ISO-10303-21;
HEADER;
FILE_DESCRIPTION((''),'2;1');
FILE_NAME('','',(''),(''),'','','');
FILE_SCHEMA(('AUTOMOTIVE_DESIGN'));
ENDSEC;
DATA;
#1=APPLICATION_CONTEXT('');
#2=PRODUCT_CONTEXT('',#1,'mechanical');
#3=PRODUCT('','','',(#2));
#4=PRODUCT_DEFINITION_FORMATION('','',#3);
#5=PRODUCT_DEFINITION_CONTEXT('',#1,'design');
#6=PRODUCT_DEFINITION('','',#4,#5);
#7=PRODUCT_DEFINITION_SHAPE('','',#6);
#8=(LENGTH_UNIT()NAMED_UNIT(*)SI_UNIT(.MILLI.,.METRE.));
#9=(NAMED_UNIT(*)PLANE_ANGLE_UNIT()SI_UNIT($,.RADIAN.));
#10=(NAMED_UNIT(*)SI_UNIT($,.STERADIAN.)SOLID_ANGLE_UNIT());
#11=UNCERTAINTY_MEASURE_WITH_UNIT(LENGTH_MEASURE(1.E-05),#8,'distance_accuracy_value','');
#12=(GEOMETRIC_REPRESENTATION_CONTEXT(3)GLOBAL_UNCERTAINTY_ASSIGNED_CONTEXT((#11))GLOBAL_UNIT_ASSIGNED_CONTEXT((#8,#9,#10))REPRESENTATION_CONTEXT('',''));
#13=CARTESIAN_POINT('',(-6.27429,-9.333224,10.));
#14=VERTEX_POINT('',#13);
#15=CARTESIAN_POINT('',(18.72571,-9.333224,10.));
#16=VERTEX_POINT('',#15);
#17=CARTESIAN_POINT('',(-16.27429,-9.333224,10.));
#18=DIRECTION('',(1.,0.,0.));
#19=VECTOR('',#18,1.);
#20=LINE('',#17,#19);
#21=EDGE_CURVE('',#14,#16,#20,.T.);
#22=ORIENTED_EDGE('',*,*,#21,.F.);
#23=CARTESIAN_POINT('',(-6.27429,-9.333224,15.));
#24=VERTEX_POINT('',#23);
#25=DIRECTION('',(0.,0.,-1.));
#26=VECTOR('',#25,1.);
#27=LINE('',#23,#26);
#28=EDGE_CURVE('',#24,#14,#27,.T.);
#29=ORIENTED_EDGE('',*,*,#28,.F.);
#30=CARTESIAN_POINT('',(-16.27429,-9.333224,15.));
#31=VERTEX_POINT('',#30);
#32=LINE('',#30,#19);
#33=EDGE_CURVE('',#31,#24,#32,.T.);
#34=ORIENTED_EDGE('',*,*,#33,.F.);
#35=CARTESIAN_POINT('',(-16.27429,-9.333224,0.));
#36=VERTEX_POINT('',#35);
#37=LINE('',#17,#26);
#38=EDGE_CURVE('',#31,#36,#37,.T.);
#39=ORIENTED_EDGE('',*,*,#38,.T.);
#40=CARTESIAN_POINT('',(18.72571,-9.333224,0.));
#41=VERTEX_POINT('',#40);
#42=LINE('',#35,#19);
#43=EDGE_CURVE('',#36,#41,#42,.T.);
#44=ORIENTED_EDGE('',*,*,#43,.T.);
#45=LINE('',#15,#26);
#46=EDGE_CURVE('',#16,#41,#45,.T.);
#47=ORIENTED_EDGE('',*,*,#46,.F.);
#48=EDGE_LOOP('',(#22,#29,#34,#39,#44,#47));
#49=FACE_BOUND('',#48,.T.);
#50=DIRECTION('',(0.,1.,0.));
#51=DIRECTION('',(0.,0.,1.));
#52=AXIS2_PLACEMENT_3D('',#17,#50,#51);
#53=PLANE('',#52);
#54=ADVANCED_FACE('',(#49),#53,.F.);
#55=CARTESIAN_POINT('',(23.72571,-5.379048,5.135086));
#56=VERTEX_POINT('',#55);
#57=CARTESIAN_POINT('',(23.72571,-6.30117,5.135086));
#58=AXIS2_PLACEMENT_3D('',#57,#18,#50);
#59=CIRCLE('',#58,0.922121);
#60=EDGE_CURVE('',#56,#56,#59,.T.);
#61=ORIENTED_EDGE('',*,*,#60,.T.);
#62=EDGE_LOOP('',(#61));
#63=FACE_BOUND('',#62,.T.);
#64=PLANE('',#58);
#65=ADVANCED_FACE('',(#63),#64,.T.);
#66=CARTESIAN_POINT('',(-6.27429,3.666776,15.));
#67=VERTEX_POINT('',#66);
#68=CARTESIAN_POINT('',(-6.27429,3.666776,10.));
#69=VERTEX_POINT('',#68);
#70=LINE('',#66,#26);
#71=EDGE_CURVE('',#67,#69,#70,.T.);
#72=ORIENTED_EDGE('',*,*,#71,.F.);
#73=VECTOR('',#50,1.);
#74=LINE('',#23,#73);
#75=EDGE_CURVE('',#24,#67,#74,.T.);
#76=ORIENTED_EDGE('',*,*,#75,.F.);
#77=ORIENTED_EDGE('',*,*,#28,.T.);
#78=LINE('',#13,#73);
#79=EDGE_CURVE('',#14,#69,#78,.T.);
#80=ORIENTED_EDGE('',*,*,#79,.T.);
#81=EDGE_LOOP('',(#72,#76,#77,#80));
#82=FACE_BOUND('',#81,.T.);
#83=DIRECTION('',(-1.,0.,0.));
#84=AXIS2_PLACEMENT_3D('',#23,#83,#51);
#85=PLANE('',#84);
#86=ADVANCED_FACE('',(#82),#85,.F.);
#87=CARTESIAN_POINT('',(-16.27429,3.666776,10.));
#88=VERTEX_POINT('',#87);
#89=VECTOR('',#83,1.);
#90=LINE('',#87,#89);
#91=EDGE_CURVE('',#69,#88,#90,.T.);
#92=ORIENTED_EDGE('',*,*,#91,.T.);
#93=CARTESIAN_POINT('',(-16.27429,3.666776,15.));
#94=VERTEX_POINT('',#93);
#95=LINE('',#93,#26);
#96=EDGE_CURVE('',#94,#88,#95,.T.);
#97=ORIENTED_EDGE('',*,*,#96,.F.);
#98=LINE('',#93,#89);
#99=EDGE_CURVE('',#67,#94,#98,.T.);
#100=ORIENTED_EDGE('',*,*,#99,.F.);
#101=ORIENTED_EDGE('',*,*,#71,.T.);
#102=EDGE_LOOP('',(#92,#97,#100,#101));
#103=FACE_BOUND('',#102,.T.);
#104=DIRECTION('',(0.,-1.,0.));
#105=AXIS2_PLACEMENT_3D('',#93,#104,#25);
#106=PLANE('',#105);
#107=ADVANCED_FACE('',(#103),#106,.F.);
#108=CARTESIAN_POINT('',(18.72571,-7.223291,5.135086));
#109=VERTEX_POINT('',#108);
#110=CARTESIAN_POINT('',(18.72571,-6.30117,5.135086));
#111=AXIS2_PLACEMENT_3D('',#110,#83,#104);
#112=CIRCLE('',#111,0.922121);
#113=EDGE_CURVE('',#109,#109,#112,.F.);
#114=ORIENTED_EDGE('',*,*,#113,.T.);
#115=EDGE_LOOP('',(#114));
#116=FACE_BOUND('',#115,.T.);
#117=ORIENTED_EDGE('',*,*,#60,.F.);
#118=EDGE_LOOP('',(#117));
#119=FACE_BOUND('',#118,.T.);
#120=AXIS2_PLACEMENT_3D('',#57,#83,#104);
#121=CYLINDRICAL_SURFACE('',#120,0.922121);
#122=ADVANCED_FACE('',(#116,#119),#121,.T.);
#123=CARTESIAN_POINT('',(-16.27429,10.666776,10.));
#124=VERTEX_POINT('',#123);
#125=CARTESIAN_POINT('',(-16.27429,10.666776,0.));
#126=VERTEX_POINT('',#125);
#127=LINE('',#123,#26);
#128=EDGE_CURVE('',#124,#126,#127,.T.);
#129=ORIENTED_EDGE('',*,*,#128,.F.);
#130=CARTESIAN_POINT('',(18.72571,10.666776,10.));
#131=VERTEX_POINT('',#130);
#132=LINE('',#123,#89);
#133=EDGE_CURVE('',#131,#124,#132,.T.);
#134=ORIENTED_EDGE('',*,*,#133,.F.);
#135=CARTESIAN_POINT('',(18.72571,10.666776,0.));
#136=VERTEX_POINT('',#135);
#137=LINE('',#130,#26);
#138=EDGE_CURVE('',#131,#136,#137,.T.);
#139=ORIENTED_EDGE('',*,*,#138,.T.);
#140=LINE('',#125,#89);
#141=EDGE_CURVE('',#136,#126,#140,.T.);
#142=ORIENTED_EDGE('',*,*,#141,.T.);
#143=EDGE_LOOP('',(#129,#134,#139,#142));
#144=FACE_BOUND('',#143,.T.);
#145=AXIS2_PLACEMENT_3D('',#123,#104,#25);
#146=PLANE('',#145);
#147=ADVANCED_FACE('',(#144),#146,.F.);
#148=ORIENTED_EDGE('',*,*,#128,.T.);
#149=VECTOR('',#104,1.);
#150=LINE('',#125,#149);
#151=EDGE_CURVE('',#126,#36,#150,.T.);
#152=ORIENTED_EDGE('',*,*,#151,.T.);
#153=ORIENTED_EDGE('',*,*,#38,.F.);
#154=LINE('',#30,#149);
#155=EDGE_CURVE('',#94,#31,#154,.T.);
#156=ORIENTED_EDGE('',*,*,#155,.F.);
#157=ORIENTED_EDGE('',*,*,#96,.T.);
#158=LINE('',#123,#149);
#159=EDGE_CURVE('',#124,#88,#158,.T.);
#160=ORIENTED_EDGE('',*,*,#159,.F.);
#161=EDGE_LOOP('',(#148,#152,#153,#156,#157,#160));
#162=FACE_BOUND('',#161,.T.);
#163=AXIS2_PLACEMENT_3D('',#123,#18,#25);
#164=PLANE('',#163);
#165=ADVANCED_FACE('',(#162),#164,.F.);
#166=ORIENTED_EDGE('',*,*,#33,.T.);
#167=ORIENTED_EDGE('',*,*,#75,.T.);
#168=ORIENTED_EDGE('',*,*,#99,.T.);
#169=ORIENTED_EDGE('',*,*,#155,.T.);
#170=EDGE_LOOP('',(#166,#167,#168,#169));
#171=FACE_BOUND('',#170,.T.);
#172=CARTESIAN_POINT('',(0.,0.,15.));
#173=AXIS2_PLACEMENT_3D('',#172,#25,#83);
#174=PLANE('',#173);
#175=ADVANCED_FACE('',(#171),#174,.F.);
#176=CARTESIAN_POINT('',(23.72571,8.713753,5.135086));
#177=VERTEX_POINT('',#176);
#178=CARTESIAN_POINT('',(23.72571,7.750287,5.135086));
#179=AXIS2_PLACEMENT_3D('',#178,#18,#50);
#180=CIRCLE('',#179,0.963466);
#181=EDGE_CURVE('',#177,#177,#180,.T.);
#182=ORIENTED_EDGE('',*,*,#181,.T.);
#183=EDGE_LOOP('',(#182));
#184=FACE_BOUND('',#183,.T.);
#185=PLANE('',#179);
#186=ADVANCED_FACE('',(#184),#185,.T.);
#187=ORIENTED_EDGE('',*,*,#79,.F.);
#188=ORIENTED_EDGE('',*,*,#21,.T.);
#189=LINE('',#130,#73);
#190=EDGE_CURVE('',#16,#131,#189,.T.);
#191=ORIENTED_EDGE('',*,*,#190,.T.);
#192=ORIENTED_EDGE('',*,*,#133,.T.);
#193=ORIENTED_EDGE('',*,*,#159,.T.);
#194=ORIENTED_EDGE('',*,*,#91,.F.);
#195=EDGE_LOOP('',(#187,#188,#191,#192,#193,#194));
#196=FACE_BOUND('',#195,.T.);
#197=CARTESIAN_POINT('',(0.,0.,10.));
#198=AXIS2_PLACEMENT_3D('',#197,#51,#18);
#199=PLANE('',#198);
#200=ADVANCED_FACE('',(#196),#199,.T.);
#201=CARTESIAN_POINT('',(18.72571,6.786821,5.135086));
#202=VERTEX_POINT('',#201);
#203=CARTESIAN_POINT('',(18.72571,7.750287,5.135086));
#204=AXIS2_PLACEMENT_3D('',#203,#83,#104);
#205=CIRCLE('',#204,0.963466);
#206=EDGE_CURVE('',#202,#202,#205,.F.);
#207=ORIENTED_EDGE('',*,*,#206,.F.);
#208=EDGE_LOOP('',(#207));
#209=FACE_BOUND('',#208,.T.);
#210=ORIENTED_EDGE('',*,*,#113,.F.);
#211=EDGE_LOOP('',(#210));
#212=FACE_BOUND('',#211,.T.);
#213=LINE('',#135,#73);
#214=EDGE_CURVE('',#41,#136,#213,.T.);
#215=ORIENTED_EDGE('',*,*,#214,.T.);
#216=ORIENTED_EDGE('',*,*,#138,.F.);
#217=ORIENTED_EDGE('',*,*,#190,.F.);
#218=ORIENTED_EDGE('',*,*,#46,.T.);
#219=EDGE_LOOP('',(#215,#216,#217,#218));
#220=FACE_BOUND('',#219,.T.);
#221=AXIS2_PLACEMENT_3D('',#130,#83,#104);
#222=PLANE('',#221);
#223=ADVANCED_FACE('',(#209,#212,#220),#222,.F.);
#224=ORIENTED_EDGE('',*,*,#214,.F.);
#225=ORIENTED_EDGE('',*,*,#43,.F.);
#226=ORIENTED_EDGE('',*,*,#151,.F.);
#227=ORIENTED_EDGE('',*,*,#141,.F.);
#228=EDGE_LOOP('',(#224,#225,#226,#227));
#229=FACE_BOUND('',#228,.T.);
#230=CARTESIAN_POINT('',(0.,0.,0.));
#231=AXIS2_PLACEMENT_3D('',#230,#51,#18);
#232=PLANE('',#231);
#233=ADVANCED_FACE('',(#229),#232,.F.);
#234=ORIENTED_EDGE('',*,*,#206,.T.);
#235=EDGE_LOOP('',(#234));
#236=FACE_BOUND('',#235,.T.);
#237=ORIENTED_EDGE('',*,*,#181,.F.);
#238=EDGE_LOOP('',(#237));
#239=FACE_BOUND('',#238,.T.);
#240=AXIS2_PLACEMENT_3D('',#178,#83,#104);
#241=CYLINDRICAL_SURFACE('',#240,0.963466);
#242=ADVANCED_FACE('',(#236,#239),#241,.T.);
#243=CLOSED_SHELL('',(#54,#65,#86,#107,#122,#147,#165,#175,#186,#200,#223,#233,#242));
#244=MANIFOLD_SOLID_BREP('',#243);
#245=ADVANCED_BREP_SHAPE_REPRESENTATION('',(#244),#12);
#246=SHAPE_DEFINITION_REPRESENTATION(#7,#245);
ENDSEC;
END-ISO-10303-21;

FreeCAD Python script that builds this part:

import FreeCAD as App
import Part
import Sketcher

V = App.Vector


def add_polygon(sketch, points):
    """Adds a closed chain of lines whose ends are joined by coincident constraints."""
    first, n = sketch.GeometryCount, len(points)
    for a, b in zip(points, points[1:] + points[:1]):
        sketch.addGeometry(Part.LineSegment(App.Vector(*a, 0), App.Vector(*b, 0)), False)
    for i in range(n):
        sketch.addConstraint(Sketcher.Constraint("Coincident", first + i, 2, first + (i + 1) % n, 1))

doc = App.newDocument("Part")
body = doc.addObject("PartDesign::Body", "Body")

# Sketch on XY plane
sketch1 = doc.addObject("Sketcher::SketchObject", "Sketch")
body.addObject(sketch1)
sketch1.AttachmentSupport = (doc.XY_Plane, [""])
sketch1.MapMode = "FlatFace"
add_polygon(sketch1, [(-16, 11), (-16, -9), (19, -9), (19, 11)])  # lines 0-3
sketch1.addConstraint([
    Sketcher.Constraint("Vertical", 0),
    Sketcher.Constraint("Horizontal", 1),
    Sketcher.Constraint("Vertical", 2),
    Sketcher.Constraint("Horizontal", 3),
    Sketcher.Constraint("DistanceX", 1, 1, 1, 2, 35.0),
    Sketcher.Constraint("DistanceY", 0, 2, 0, 1, 20.0),
    Sketcher.Constraint("DistanceX", 0, 2, -1, 1, 16.27429),
    Sketcher.Constraint("DistanceY", 0, 2, -1, 1, 9.333224),
])
pad1 = doc.addObject("PartDesign::Pad", "Pad")
body.addObject(pad1)
pad1.Profile = sketch1
pad1.Length = 10

# Sketch on XY plane
sketch2 = doc.addObject("Sketcher::SketchObject", "Sketch001")
body.addObject(sketch2)
sketch2.AttachmentSupport = (doc.XY_Plane, [""])
sketch2.MapMode = "FlatFace"
sketch2.AttachmentOffset = App.Placement(V(0, 0, 10), App.Rotation())
add_polygon(sketch2, [(-16, 4), (-16, -9), (-6, -9), (-6, 4)])  # lines 0-3
sketch2.addConstraint([
    Sketcher.Constraint("Vertical", 0),
    Sketcher.Constraint("Horizontal", 1),
    Sketcher.Constraint("Vertical", 2),
    Sketcher.Constraint("Horizontal", 3),
    Sketcher.Constraint("DistanceX", 1, 1, 1, 2, 10.0),
    Sketcher.Constraint("DistanceY", 0, 2, 0, 1, 13.0),
    Sketcher.Constraint("DistanceX", 0, 2, -1, 1, 16.27429),
    Sketcher.Constraint("DistanceY", 0, 2, -1, 1, 9.333224),
])
pad2 = doc.addObject("PartDesign::Pad", "Pad001")
body.addObject(pad2)
pad2.Profile = sketch2
pad2.Length = 5

# Sketch on YZ plane
sketch3 = doc.addObject("Sketcher::SketchObject", "Sketch002")
body.addObject(sketch3)
sketch3.AttachmentSupport = (doc.YZ_Plane, [""])
sketch3.MapMode = "FlatFace"
sketch3.AttachmentOffset = App.Placement(V(0, 0, 18.72571), App.Rotation())
sketch3.addGeometry([
    Part.Circle(V(-6.3, 5.1, 0), V(0, 0, 1), 0.9),
    Part.Circle(V(7.8, 5.1, 0), V(0, 0, 1), 1),
], False)
sketch3.addConstraint([
    Sketcher.Constraint("Horizontal", 0, 3, 1, 3),
    Sketcher.Constraint("Diameter", 0, 1.844243),
    Sketcher.Constraint("Diameter", 1, 1.926933),
    Sketcher.Constraint("DistanceX", 0, 3, -1, 1, 6.30117),
    Sketcher.Constraint("DistanceY", -1, 1, 0, 3, 5.135086),
    Sketcher.Constraint("DistanceX", -1, 1, 1, 3, 7.750287),
])
pad3 = doc.addObject("PartDesign::Pad", "Pad002")
body.addObject(pad3)
pad3.Profile = sketch3
pad3.Length = 5

doc.recompute()
